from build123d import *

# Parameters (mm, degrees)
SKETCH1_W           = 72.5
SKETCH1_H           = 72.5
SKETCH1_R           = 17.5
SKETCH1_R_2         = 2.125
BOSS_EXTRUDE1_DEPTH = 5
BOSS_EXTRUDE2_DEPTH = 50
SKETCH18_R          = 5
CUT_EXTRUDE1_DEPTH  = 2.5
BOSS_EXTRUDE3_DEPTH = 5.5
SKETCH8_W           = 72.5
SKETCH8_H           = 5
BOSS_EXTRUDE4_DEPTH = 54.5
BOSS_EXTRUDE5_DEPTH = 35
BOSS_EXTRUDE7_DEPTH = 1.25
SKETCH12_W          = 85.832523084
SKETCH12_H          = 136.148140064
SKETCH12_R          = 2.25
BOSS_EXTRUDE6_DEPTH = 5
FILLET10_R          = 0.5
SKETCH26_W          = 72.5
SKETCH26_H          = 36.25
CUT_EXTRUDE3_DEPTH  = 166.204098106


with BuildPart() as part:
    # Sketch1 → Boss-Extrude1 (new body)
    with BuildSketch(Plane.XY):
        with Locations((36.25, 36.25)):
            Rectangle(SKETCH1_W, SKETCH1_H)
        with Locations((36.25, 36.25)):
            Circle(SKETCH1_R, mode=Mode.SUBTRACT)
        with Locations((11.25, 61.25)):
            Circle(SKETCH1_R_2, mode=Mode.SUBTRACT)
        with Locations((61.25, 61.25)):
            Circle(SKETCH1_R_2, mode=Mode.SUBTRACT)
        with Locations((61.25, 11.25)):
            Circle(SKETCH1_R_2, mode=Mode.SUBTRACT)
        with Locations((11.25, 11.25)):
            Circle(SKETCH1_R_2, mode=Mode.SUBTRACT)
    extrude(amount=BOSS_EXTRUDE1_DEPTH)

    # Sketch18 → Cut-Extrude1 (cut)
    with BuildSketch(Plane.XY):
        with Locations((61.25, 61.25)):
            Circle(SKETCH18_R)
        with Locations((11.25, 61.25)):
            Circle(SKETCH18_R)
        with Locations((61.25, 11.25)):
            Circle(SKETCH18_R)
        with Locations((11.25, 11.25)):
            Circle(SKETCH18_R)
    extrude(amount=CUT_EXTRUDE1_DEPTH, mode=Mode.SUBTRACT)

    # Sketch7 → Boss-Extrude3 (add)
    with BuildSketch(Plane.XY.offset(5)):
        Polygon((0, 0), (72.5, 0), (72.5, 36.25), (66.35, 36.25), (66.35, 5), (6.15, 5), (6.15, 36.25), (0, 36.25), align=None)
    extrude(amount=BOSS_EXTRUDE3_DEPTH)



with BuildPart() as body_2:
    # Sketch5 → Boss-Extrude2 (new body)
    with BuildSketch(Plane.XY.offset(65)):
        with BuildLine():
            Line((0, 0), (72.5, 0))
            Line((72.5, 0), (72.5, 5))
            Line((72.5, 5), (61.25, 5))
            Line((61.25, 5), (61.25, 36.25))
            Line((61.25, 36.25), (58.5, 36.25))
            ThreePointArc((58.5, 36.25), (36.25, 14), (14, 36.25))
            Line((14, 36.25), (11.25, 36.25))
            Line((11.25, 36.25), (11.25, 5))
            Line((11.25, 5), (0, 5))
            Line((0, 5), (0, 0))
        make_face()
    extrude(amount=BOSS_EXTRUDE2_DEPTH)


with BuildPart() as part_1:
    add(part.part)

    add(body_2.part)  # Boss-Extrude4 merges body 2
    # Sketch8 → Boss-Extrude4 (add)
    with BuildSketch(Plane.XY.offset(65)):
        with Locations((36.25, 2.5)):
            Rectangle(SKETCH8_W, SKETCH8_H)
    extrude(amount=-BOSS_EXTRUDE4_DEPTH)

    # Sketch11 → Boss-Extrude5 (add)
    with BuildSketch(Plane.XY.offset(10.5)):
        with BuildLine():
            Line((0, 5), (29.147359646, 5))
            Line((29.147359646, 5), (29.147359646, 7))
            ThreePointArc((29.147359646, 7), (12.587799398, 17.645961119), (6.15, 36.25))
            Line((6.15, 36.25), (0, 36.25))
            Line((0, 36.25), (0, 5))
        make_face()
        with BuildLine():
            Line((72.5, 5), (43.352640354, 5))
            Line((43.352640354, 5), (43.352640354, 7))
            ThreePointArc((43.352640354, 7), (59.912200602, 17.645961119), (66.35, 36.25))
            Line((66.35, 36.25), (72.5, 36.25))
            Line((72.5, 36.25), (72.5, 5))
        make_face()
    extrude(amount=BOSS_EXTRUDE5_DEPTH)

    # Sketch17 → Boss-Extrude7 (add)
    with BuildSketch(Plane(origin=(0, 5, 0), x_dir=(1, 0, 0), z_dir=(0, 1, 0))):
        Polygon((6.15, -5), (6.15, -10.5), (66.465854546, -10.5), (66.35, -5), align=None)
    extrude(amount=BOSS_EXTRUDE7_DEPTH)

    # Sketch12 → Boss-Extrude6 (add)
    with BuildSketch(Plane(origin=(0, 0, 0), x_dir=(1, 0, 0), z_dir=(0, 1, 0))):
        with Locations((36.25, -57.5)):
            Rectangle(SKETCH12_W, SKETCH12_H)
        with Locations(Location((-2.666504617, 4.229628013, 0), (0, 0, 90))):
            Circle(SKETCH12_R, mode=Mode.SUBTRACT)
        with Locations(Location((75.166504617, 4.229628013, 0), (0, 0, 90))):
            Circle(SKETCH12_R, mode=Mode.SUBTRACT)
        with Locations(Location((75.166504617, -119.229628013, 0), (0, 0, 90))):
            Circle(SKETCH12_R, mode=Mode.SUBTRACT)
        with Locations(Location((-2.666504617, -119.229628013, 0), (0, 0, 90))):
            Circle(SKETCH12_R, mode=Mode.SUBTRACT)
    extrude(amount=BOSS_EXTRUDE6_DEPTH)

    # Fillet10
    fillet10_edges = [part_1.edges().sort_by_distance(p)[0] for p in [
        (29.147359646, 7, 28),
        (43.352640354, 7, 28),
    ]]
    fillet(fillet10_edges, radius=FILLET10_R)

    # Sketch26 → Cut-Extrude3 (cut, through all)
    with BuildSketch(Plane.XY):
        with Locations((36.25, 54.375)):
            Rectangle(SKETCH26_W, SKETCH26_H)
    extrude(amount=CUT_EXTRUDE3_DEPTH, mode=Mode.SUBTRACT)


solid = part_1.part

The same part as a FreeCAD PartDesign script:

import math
import FreeCAD as App
import Part
import Sketcher


def edges_at(feature, points):
    """Names of the edges that pass closest to the given points."""
    edges = feature.Shape.Edges
    near = lambda p: min(range(len(edges)), key=lambda i: edges[i].distToShape(Part.Vertex(*p))[0])
    return sorted({f"Edge{near(p) + 1}" for p in points})


def add_polygon(sketch, points):
    """Adds a closed chain of lines whose ends are joined by coincident constraints."""
    first, n = sketch.GeometryCount, len(points)
    for a, b in zip(points, points[1:] + points[:1]):
        sketch.addGeometry(Part.LineSegment(App.Vector(*a, 0), App.Vector(*b, 0)), False)
    for i in range(n):
        sketch.addConstraint(Sketcher.Constraint("Coincident", first + i, 2, first + (i + 1) % n, 1))

doc = App.newDocument("Part")
body = doc.addObject("PartDesign::Body", "Body")

# Sketch on XY plane
sketch1 = body.newObject("Sketcher::SketchObject", "Sketch")
sketch1.AttachmentSupport = (doc.getObject("XY_Plane"), [""])
sketch1.MapMode = "FlatFace"
add_polygon(sketch1, [(0, 72.5), (0, 0), (72.5, 0), (72.5, 72.5)])  # lines 0-3
sketch1.addGeometry(Part.Circle(App.Vector(11.2, 11.2, 0), App.Vector(0, 0, 1), 2.1), False)  # 4
sketch1.addGeometry(Part.Circle(App.Vector(61.2, 11.2, 0), App.Vector(0, 0, 1), 2.1), False)  # 5
sketch1.addGeometry(Part.Circle(App.Vector(11.2, 61.2, 0), App.Vector(0, 0, 1), 2.1), False)  # 6
sketch1.addGeometry(Part.Circle(App.Vector(36.2, 36.2, 0), App.Vector(0, 0, 1), 17.5), False)  # 7
sketch1.addGeometry(Part.Circle(App.Vector(61.2, 61.2, 0), App.Vector(0, 0, 1), 2.1), False)  # 8
sketch1.addConstraint([
    Sketcher.Constraint("Vertical", 0),
    Sketcher.Constraint("Horizontal", 1),
    Sketcher.Constraint("Vertical", 2),
    Sketcher.Constraint("Horizontal", 3),
    Sketcher.Constraint("Coincident", 0, 2, -1, 1),
    Sketcher.Constraint("Equal", 4, 5),
    Sketcher.Constraint("Equal", 5, 6),
    Sketcher.Constraint("Equal", 6, 8),
    Sketcher.Constraint("Horizontal", 4, 3, 5, 3),
    Sketcher.Constraint("Horizontal", 6, 3, 8, 3),
    Sketcher.Constraint("Vertical", 4, 3, 6, 3),
    Sketcher.Constraint("Vertical", 5, 3, 8, 3),
    Sketcher.Constraint("Equal", 3, 0),
    Sketcher.Constraint("Diameter", 7, 35.0),
    Sketcher.Constraint("Diameter", 4, 4.25),
    Sketcher.Constraint("DistanceX", 1, 1, 1, 2, 72.5),
    Sketcher.Constraint("DistanceX", 4, 3, 5, 3, 50.0),
    Sketcher.Constraint("DistanceY", 4, 3, 6, 3, 50.0),
    Sketcher.Constraint("DistanceX", 4, 3, 7, 3, 25.0),
    Sketcher.Constraint("DistanceY", 4, 3, 7, 3, 25.0),
    Sketcher.Constraint("DistanceX", -1, 1, 4, 3, 11.25),
    Sketcher.Constraint("DistanceY", -1, 1, 4, 3, 11.25),
])
pad1 = body.newObject("PartDesign::Pad", "Pad")
pad1.Profile = sketch1
pad1.Length = 5

# Sketch on XY plane
sketch2 = body.newObject("Sketcher::SketchObject", "Sketch001")
sketch2.AttachmentSupport = (doc.getObject("XY_Plane"), [""])
sketch2.MapMode = "FlatFace"
sketch2.addGeometry([
    Part.Circle(App.Vector(61, 61, 0), App.Vector(0, 0, 1), 5),
    Part.Circle(App.Vector(11, 61, 0), App.Vector(0, 0, 1), 5),
    Part.Circle(App.Vector(61, 11, 0), App.Vector(0, 0, 1), 5),
    Part.Circle(App.Vector(11, 11, 0), App.Vector(0, 0, 1), 5),
], False)
sketch2.addConstraint([
    Sketcher.Constraint("Equal", 0, 1),
    Sketcher.Constraint("Equal", 1, 2),
    Sketcher.Constraint("Equal", 2, 3),
    Sketcher.Constraint("Horizontal", 0, 3, 1, 3),
    Sketcher.Constraint("Horizontal", 2, 3, 3, 3),
    Sketcher.Constraint("Vertical", 0, 3, 2, 3),
    Sketcher.Constraint("Vertical", 1, 3, 3, 3),
    Sketcher.Constraint("Diameter", 0, 10.0),
    Sketcher.Constraint("DistanceX", 1, 3, 0, 3, 50.0),
    Sketcher.Constraint("DistanceY", 2, 3, 0, 3, 50.0),
    Sketcher.Constraint("DistanceX", -1, 1, 0, 3, 61.25),
    Sketcher.Constraint("DistanceY", -1, 1, 0, 3, 61.25),
])
pocket1 = body.newObject("PartDesign::Pocket", "Pocket")
pocket1.Profile = sketch2
pocket1.Length = 2.5
pocket1.Reversed = True

# Sketch on XY plane
sketch3 = body.newObject("Sketcher::SketchObject", "Sketch002")
sketch3.AttachmentSupport = (doc.getObject("XY_Plane"), [""])
sketch3.MapMode = "FlatFace"
sketch3.AttachmentOffset = App.Placement(App.Vector(0, 0, 5), App.Rotation())
add_polygon(sketch3, [(0, 0), (72, 0), (72, 36), (66, 36), (66, 5), (6, 5), (6, 36), (0, 36)])  # lines 0-7
sketch3.addConstraint([
    Sketcher.Constraint("Horizontal", 0),
    Sketcher.Constraint("Vertical", 1),
    Sketcher.Constraint("Horizontal", 2),
    Sketcher.Constraint("Vertical", 3),
    Sketcher.Constraint("Horizontal", 4),
    Sketcher.Constraint("Vertical", 5),
    Sketcher.Constraint("Horizontal", 6),
    Sketcher.Constraint("Vertical", 7),
    Sketcher.Constraint("Coincident", 7, 2, -1, 1),
    Sketcher.Constraint("Horizontal", 2, 2, 5, 2),
    Sketcher.Constraint("Equal", 2, 6),
    Sketcher.Constraint("DistanceX", 0, 1, 0, 2, 72.5),
    Sketcher.Constraint("DistanceX", 4, 2, 4, 1, 60.2),
    Sketcher.Constraint("DistanceY", -1, 1, 3, 2, 5.0),
    Sketcher.Constraint("DistanceY", 1, 1, 1, 2, 36.25),
])
pad2 = body.newObject("PartDesign::Pad", "Pad001")
pad2.Profile = sketch3
pad2.Length = 5.5
body2 = doc.addObject("PartDesign::Body", "Body001")

# Sketch on XY plane
sketch4 = body2.newObject("Sketcher::SketchObject", "Sketch003")
sketch4.AttachmentSupport = (doc.getObject("XY_Plane001"), [""])
sketch4.MapMode = "FlatFace"
sketch4.AttachmentOffset = App.Placement(App.Vector(0, 0, 65), App.Rotation())
sketch4.addGeometry([
    Part.LineSegment(App.Vector(0, 0, 0), App.Vector(72.5, 0, 0)),  # 0
    Part.LineSegment(App.Vector(72.5, 0, 0), App.Vector(72.5, 5, 0)),  # 1
    Part.LineSegment(App.Vector(72.5, 5, 0), App.Vector(61.2, 5, 0)),  # 2
    Part.LineSegment(App.Vector(61.2, 5, 0), App.Vector(61.2, 36.2, 0)),  # 3
    Part.LineSegment(App.Vector(61.2, 36.2, 0), App.Vector(58.5, 36.2, 0)),  # 4
    Part.ArcOfCircle(Part.Circle(App.Vector(36.2, 36.2, 0), App.Vector(0, 0, 1), 22.2), math.radians(180), math.radians(360)),  # 5
    Part.LineSegment(App.Vector(14, 36.2, 0), App.Vector(11.2, 36.2, 0)),  # 6
    Part.LineSegment(App.Vector(11.2, 36.2, 0), App.Vector(11.2, 5, 0)),  # 7
    Part.LineSegment(App.Vector(11.2, 5, 0), App.Vector(0, 5, 0)),  # 8
    Part.LineSegment(App.Vector(0, 5, 0), App.Vector(0, 0, 0)),  # 9
], False)
sketch4.addConstraint([
    Sketcher.Constraint("Coincident", 0, 2, 1, 1),
    Sketcher.Constraint("Coincident", 1, 2, 2, 1),
    Sketcher.Constraint("Coincident", 2, 2, 3, 1),
    Sketcher.Constraint("Coincident", 3, 2, 4, 1),
    Sketcher.Constraint("Coincident", 4, 2, 5, 2),
    Sketcher.Constraint("Coincident", 5, 1, 6, 1),
    Sketcher.Constraint("Coincident", 6, 2, 7, 1),
    Sketcher.Constraint("Coincident", 7, 2, 8, 1),
    Sketcher.Constraint("Coincident", 8, 2, 9, 1),
    Sketcher.Constraint("Coincident", 9, 2, 0, 1),
    Sketcher.Constraint("Horizontal", 0),
    Sketcher.Constraint("Vertical", 1),
    Sketcher.Constraint("Horizontal", 2),
    Sketcher.Constraint("Vertical", 3),
    Sketcher.Constraint("Horizontal", 4),
    Sketcher.Constraint("Horizontal", 6),
    Sketcher.Constraint("Vertical", 7),
    Sketcher.Constraint("Horizontal", 8),
    Sketcher.Constraint("Vertical", 9),
    Sketcher.Constraint("Coincident", 9, 2, -1, 1),
    Sketcher.Constraint("Horizontal", 5, 3, 3, 2),
    Sketcher.Constraint("Horizontal", 4, 2, 5, 1),
    Sketcher.Constraint("Horizontal", 2, 2, 7, 2),
    Sketcher.Constraint("Equal", 4, 6),
    Sketcher.Constraint("Equal", 2, 8),
    Sketcher.Constraint("DistanceY", 1, 1, 1, 2, 5.0),
    Sketcher.Constraint("Radius", 5, 22.25),
    Sketcher.Constraint("DistanceX", 0, 1, 0, 2, 72.5),
    Sketcher.Constraint("DistanceX", 5, 3, 2, 2, 25.0),
    Sketcher.Constraint("DistanceY", 3, 1, 3, 2, 31.25),
])
pad3 = body2.newObject("PartDesign::Pad", "Pad002")
pad3.Profile = sketch4
pad3.Length = 50
body.AllowCompound = True
doc.recompute()

boolean = body.newObject("PartDesign::Boolean", "Boolean")
boolean.Type = "Fuse"
boolean.addObjects([body2])

# Sketch on XY plane
sketch5 = body.newObject("Sketcher::SketchObject", "Sketch004")
sketch5.AttachmentSupport = (doc.getObject("XY_Plane"), [""])
sketch5.MapMode = "FlatFace"
sketch5.AttachmentOffset = App.Placement(App.Vector(0, 0, 65), App.Rotation())
add_polygon(sketch5, [(0, 5), (0, 0), (72, 0), (72, 5)])  # lines 0-3
sketch5.addConstraint([
    Sketcher.Constraint("Vertical", 0),
    Sketcher.Constraint("Horizontal", 1),
    Sketcher.Constraint("Vertical", 2),
    Sketcher.Constraint("Horizontal", 3),
    Sketcher.Constraint("Coincident", 0, 2, -1, 1),
    Sketcher.Constraint("DistanceY", 0, 2, 0, 1, 5.0),
    Sketcher.Constraint("DistanceX", 1, 1, 1, 2, 72.5),
])
pad4 = body.newObject("PartDesign::Pad", "Pad003")
pad4.Profile = sketch5
pad4.Length = 54.5
pad4.Reversed = True

# Sketch on XY plane
sketch6 = body.newObject("Sketcher::SketchObject", "Sketch005")
sketch6.AttachmentSupport = (doc.getObject("XY_Plane"), [""])
sketch6.MapMode = "FlatFace"
sketch6.AttachmentOffset = App.Placement(App.Vector(0, 0, 10.5), App.Rotation())
sketch6.addGeometry([
    Part.LineSegment(App.Vector(0, 5, 0), App.Vector(29.1, 5, 0)),  # 0
    Part.LineSegment(App.Vector(29.1, 5, 0), App.Vector(29.1, 7, 0)),  # 1
    Part.ArcOfCircle(Part.Circle(App.Vector(36.2, 36.2, 0), App.Vector(0, 0, 1), 30.1), math.radians(180), math.radians(256)),  # 2
    Part.LineSegment(App.Vector(6.2, 36.2, 0), App.Vector(0, 36.2, 0)),  # 3
    Part.LineSegment(App.Vector(0, 36.2, 0), App.Vector(0, 5, 0)),  # 4
    Part.LineSegment(App.Vector(43.4, 5, 0), App.Vector(72.5, 5, 0)),  # 5
    Part.LineSegment(App.Vector(72.5, 5, 0), App.Vector(72.5, 36.2, 0)),  # 6
    Part.LineSegment(App.Vector(72.5, 36.2, 0), App.Vector(66.3, 36.2, 0)),  # 7
    Part.ArcOfCircle(Part.Circle(App.Vector(36.3, 36.2, 0), App.Vector(0, 0, 1), 30.1), math.radians(-76), math.radians(0)),  # 8
    Part.LineSegment(App.Vector(43.4, 7, 0), App.Vector(43.4, 5, 0)),  # 9
], False)
sketch6.addConstraint([
    Sketcher.Constraint("Coincident", 0, 2, 1, 1),
    Sketcher.Constraint("Coincident", 1, 2, 2, 2),
    Sketcher.Constraint("Coincident", 2, 1, 3, 1),
    Sketcher.Constraint("Coincident", 3, 2, 4, 1),
    Sketcher.Constraint("Coincident", 4, 2, 0, 1),
    Sketcher.Constraint("Coincident", 5, 2, 6, 1),
    Sketcher.Constraint("Coincident", 6, 2, 7, 1),
    Sketcher.Constraint("Coincident", 7, 2, 8, 2),
    Sketcher.Constraint("Coincident", 8, 1, 9, 1),
    Sketcher.Constraint("Coincident", 9, 2, 5, 1),
    Sketcher.Constraint("Horizontal", 0),
    Sketcher.Constraint("Vertical", 1),
    Sketcher.Constraint("Horizontal", 3),
    Sketcher.Constraint("Vertical", 4),
    Sketcher.Constraint("Horizontal", 5),
    Sketcher.Constraint("Vertical", 6),
    Sketcher.Constraint("Horizontal", 7),
    Sketcher.Constraint("Vertical", 9),
    Sketcher.Constraint("Coincident", 8, 3, 2, 3),
    Sketcher.Constraint("Equal", 2, 8),
    Sketcher.Constraint("PointOnObject", 3, 2, -2),
    Sketcher.Constraint("Horizontal", 8, 3, 2, 1),
    Sketcher.Constraint("Horizontal", 4, 2, 5, 2),
    Sketcher.Constraint("Horizontal", 3, 2, 6, 2),
    Sketcher.Constraint("Horizontal", 1, 2, 8, 1),
    Sketcher.Constraint("Equal", 0, 5),
    Sketcher.Constraint("Radius", 2, 30.1),
    Sketcher.Constraint("DistanceY", 1, 1, 1, 2, 2.0),
    Sketcher.Constraint("DistanceY", -1, 1, 0, 2, 5.0),
    Sketcher.Constraint("DistanceX", 3, 2, 3, 1, 6.15),
    Sketcher.Constraint("DistanceY", 4, 2, 4, 1, 31.25),
])
pad5 = body.newObject("PartDesign::Pad", "Pad004")
pad5.Profile = sketch6
pad5.Length = 35

# Sketch on XZ plane
sketch7 = body.newObject("Sketcher::SketchObject", "Sketch006")
sketch7.AttachmentSupport = (doc.getObject("XZ_Plane"), [""])
sketch7.MapMode = "FlatFace"
sketch7.AttachmentOffset = App.Placement(App.Vector(0, 0, -5), App.Rotation())
add_polygon(sketch7, [(6.15, 5), (6.15, 10.5), (66.465855, 10.5), (66.35, 5)])  # lines 0-3
sketch7.addConstraint([
    Sketcher.Constraint("Vertical", 0),
    Sketcher.Constraint("Horizontal", 1),
    Sketcher.Constraint("Horizontal", 3),
    Sketcher.Constraint("DistanceX", 3, 2, 3, 1, 60.2),
    Sketcher.Constraint("DistanceY", 0, 1, 0, 2, 5.5),
    Sketcher.Constraint("DistanceY", -1, 1, 2, 2, 5.0),
    Sketcher.Constraint("DistanceX", -1, 1, 0, 2, 6.15),
    Sketcher.Constraint("Distance", 2, 5.50122),
])
pad6 = body.newObject("PartDesign::Pad", "Pad005")
pad6.Profile = sketch7
pad6.Length = 1.25
pad6.Reversed = True

# Sketch on XZ plane
sketch8 = body.newObject("Sketcher::SketchObject", "Sketch007")
sketch8.AttachmentSupport = (doc.getObject("XZ_Plane"), [""])
sketch8.MapMode = "FlatFace"
add_polygon(sketch8, [(-6.7, -10.6), (-6.7, 125.6), (79.2, 125.6), (79.2, -10.6)])  # lines 0-3
sketch8.addGeometry(Part.Circle(App.Vector(-2.7, 119.2, 0), App.Vector(0, 0, 1), 2.2), False)  # 4
sketch8.addGeometry(Part.Circle(App.Vector(75.2, 119.2, 0), App.Vector(0, 0, 1), 2.2), False)  # 5
sketch8.addGeometry(Part.Circle(App.Vector(-2.7, -4.2, 0), App.Vector(0, 0, 1), 2.2), False)  # 6
sketch8.addGeometry(Part.Circle(App.Vector(75.2, -4.2, 0), App.Vector(0, 0, 1), 2.2), False)  # 7
sketch8.addConstraint([
    Sketcher.Constraint("Vertical", 0),
    Sketcher.Constraint("Horizontal", 1),
    Sketcher.Constraint("Vertical", 2),
    Sketcher.Constraint("Horizontal", 3),
    Sketcher.Constraint("Equal", 4, 5),
    Sketcher.Constraint("Equal", 5, 6),
    Sketcher.Constraint("Equal", 6, 7),
    Sketcher.Constraint("Horizontal", 4, 3, 5, 3),
    Sketcher.Constraint("Horizontal", 6, 3, 7, 3),
    Sketcher.Constraint("Vertical", 4, 3, 6, 3),
    Sketcher.Constraint("Vertical", 5, 3, 7, 3),
    Sketcher.Constraint("Diameter", 4, 4.5),
    Sketcher.Constraint("DistanceY", 0, 1, 0, 2, 136.14814),
    Sketcher.Constraint("DistanceY", 6, 3, 0, 2, 129.803698),
    Sketcher.Constraint("DistanceY", 2, 2, 5, 3, 129.803698),
    Sketcher.Constraint("DistanceX", 1, 1, 1, 2, 85.832523),
    Sketcher.Constraint("DistanceY", -1, 1, 4, 3, 119.229628),
    Sketcher.Constraint("DistanceX", 0, 2, -1, 1, 6.666262),
    Sketcher.Constraint("DistanceX", 4, 3, 5, 3, 77.833009),
    Sketcher.Constraint("DistanceX", 4, 3, -1, 1, 2.666505),
])
pad7 = body.newObject("PartDesign::Pad", "Pad006")
pad7.Profile = sketch8
pad7.Length = 5
pad7.Reversed = True
doc.recompute()

fillet = body.newObject("PartDesign::Fillet", "Fillet")
fillet.Base = (pad7, edges_at(pad7, [(29.147, 7, 28), (43.353, 7, 28)]))
fillet.Radius = 0.5

# Sketch on XY plane
sketch9 = body.newObject("Sketcher::SketchObject", "Sketch008")
sketch9.AttachmentSupport = (doc.getObject("XY_Plane"), [""])
sketch9.MapMode = "FlatFace"
add_polygon(sketch9, [(0, 72), (0, 36), (72, 36), (72, 72)])  # lines 0-3
sketch9.addConstraint([
    Sketcher.Constraint("Vertical", 0),
    Sketcher.Constraint("Horizontal", 1),
    Sketcher.Constraint("Vertical", 2),
    Sketcher.Constraint("Horizontal", 3),
    Sketcher.Constraint("PointOnObject", 0, 2, -2),
    Sketcher.Constraint("DistanceX", 1, 1, 1, 2, 72.5),
    Sketcher.Constraint("DistanceY", 0, 2, 0, 1, 36.25),
    Sketcher.Constraint("DistanceY", -1, 1, 2, 2, 72.5),
])
pocket2 = body.newObject("PartDesign::Pocket", "Pocket001")
pocket2.Profile = sketch9
pocket2.Type = "ThroughAll"
pocket2.Reversed = True

doc.recompute()
